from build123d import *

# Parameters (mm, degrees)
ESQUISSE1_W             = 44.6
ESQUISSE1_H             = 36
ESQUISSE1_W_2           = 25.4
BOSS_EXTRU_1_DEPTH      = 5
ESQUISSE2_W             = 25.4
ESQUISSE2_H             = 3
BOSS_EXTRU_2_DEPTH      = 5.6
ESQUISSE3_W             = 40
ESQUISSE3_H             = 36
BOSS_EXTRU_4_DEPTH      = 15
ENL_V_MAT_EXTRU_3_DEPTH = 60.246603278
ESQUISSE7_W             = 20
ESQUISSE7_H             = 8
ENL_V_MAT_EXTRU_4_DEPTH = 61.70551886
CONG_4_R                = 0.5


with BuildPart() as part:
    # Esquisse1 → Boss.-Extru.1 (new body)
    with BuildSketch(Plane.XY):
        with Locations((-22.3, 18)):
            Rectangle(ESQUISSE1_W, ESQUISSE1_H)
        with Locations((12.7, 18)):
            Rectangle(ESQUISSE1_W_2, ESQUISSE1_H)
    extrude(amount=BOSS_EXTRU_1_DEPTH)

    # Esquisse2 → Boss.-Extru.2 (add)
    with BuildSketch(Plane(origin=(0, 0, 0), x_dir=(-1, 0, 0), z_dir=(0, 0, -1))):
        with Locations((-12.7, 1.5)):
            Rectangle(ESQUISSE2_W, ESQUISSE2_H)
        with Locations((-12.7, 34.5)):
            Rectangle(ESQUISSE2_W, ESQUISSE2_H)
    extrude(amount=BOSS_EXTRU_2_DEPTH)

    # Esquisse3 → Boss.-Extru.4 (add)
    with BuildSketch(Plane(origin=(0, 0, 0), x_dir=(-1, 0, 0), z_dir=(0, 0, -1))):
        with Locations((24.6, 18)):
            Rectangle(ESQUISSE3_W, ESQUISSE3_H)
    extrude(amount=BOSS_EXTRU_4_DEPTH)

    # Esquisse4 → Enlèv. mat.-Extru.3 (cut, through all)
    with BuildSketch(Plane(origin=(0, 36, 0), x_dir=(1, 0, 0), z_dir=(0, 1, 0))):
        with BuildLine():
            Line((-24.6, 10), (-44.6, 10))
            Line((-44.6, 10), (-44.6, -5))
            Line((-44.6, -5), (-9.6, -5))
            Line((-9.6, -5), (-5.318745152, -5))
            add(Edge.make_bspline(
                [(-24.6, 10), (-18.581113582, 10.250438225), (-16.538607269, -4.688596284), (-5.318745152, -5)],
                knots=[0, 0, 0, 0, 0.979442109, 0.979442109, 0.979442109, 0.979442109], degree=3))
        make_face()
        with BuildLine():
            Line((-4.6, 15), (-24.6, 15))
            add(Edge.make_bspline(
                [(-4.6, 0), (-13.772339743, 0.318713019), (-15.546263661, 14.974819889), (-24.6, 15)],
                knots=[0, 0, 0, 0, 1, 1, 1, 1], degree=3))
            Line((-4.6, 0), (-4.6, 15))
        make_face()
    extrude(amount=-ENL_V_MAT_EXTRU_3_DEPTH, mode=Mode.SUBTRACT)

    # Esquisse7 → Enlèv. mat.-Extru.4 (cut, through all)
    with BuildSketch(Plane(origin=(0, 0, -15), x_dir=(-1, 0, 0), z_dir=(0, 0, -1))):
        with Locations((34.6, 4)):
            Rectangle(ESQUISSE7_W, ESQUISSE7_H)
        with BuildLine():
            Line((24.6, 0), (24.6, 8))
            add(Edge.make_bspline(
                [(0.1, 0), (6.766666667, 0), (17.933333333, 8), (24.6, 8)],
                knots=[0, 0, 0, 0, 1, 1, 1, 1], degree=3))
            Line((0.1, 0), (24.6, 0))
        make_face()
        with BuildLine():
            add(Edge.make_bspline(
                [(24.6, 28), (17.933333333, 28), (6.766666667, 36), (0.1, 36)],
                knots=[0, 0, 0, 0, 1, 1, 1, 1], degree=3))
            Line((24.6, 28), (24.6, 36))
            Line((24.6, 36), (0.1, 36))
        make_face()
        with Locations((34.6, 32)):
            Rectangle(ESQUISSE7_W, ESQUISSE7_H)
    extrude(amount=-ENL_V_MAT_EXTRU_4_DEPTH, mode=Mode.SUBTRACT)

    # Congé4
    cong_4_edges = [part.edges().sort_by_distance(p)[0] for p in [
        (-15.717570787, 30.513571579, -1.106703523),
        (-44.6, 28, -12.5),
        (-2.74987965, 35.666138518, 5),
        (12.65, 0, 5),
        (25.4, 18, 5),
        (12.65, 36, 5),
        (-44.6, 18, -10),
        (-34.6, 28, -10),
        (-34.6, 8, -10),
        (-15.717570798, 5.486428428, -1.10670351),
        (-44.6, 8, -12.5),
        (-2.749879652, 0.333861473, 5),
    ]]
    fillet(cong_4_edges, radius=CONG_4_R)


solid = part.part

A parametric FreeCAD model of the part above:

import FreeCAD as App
import Part
import Sketcher


def edges_at(feature, points):
    """Names of the edges that pass closest to the given points."""
    edges = feature.Shape.Edges
    near = lambda p: min(range(len(edges)), key=lambda i: edges[i].distToShape(Part.Vertex(*p))[0])
    return sorted({f"Edge{near(p) + 1}" for p in points})


def add_polygon(sketch, points):
    """Adds a closed chain of lines whose ends are joined by coincident constraints."""
    first, n = sketch.GeometryCount, len(points)
    for a, b in zip(points, points[1:] + points[:1]):
        sketch.addGeometry(Part.LineSegment(App.Vector(*a, 0), App.Vector(*b, 0)), False)
    for i in range(n):
        sketch.addConstraint(Sketcher.Constraint("Coincident", first + i, 2, first + (i + 1) % n, 1))

doc = App.newDocument("Part")
body = doc.addObject("PartDesign::Body", "Body")

# Sketch on XY plane
sketch1 = body.newObject("Sketcher::SketchObject", "Sketch")
sketch1.AttachmentSupport = (doc.getObject("XY_Plane"), [""])
sketch1.MapMode = "FlatFace"
add_polygon(sketch1, [(-44.6, 36), (-44.6, 0), (25.4, 0), (25.4, 36)])  # lines 0-3
sketch1.addConstraint(Sketcher.Constraint("Vertical", 0))
sketch1.addConstraint(Sketcher.Constraint("Horizontal", 1))
sketch1.addConstraint(Sketcher.Constraint("Vertical", 2))
sketch1.addConstraint(Sketcher.Constraint("Horizontal", 3))
sketch1.addConstraint(Sketcher.Constraint("PointOnObject", 0, 2, -1))
sketch1.addConstraint(Sketcher.Constraint("DistanceX", 1, 1, 1, 2, 70.0))
sketch1.addConstraint(Sketcher.Constraint("DistanceY", 0, 2, 0, 1, 36.0))
sketch1.addConstraint(Sketcher.Constraint("DistanceX", 0, 2, -1, 1, 44.6))
pad1 = body.newObject("PartDesign::Pad", "Pad")
pad1.Profile = sketch1
pad1.Length = 5

# Sketch on XY plane
sketch2 = body.newObject("Sketcher::SketchObject", "Sketch001")
sketch2.AttachmentSupport = (doc.getObject("XY_Plane"), [""])
sketch2.MapMode = "FlatFace"
add_polygon(sketch2, [(25.4, 3), (25.4, 0), (0, 0), (0, 3)])  # lines 0-3
add_polygon(sketch2, [(25.4, 36), (25.4, 33), (0, 33), (0, 36)])  # lines 4-7
sketch2.addConstraint(Sketcher.Constraint("Vertical", 0))
sketch2.addConstraint(Sketcher.Constraint("Horizontal", 1))
sketch2.addConstraint(Sketcher.Constraint("Vertical", 2))
sketch2.addConstraint(Sketcher.Constraint("Horizontal", 3))
sketch2.addConstraint(Sketcher.Constraint("Vertical", 4))
sketch2.addConstraint(Sketcher.Constraint("Horizontal", 5))
sketch2.addConstraint(Sketcher.Constraint("Vertical", 6))
sketch2.addConstraint(Sketcher.Constraint("Horizontal", 7))
sketch2.addConstraint(Sketcher.Constraint("Coincident", 1, 2, -1, 1))
sketch2.addConstraint(Sketcher.Constraint("PointOnObject", 5, 2, -2))
sketch2.addConstraint(Sketcher.Constraint("Vertical", 3, 2, 4, 2))
sketch2.addConstraint(Sketcher.Constraint("Equal", 2, 4))
sketch2.addConstraint(Sketcher.Constraint("DistanceY", 0, 2, 0, 1, 3.0))
sketch2.addConstraint(Sketcher.Constraint("DistanceX", 1, 2, 1, 1, 25.4))
sketch2.addConstraint(Sketcher.Constraint("DistanceY", -1, 1, 4, 2, 33.0))
pad2 = body.newObject("PartDesign::Pad", "Pad001")
pad2.Profile = sketch2
pad2.Length = 5.6
pad2.Reversed = True

# Sketch on XY plane
sketch3 = body.newObject("Sketcher::SketchObject", "Sketch002")
sketch3.AttachmentSupport = (doc.getObject("XY_Plane"), [""])
sketch3.MapMode = "FlatFace"
add_polygon(sketch3, [(-4.6, 36), (-4.6, 0), (-44.6, 0), (-44.6, 36)])  # lines 0-3
sketch3.addConstraint(Sketcher.Constraint("Vertical", 0))
sketch3.addConstraint(Sketcher.Constraint("Horizontal", 1))
sketch3.addConstraint(Sketcher.Constraint("Vertical", 2))
sketch3.addConstraint(Sketcher.Constraint("Horizontal", 3))
sketch3.addConstraint(Sketcher.Constraint("PointOnObject", 0, 2, -1))
sketch3.addConstraint(Sketcher.Constraint("DistanceX", 1, 2, 1, 1, 40.0))
sketch3.addConstraint(Sketcher.Constraint("DistanceY", 0, 2, 0, 1, 36.0))
sketch3.addConstraint(Sketcher.Constraint("DistanceX", 0, 2, -1, 1, 4.6))
pad3 = body.newObject("PartDesign::Pad", "Pad002")
pad3.Profile = sketch3
pad3.Length = 15
pad3.Reversed = True

# Sketch on XZ plane
sketch4 = body.newObject("Sketcher::SketchObject", "Sketch003")
sketch4.AttachmentSupport = (doc.getObject("XZ_Plane"), [""])
sketch4.MapMode = "FlatFace"
sketch4.AttachmentOffset = App.Placement(App.Vector(0, 0, -36), App.Rotation())
sketch4.addGeometry(Part.LineSegment(App.Vector(-24.6, -10, 0), App.Vector(-44.6, -10, 0)), False)
sketch4.addGeometry(Part.LineSegment(App.Vector(-44.6, -10, 0), App.Vector(-44.6, 5, 0)), False)
sketch4.addGeometry(Part.LineSegment(App.Vector(-44.6, 5, 0), App.Vector(-5.318745, 5, 0)), False)
sketch4.addGeometry(Part.BSplineCurve([App.Vector(-24.6, -10, 0), App.Vector(-18.581114, -10.250438, 0), App.Vector(-16.538607, 4.688596, 0), App.Vector(-5.318745, 5, 0)], [4, 4], [0, 0.979442109], False, 3, [1, 1, 1, 1], False), False)
sketch4.addGeometry(Part.LineSegment(App.Vector(-4.6, -15, 0), App.Vector(-24.6, -15, 0)), False)
sketch4.addGeometry(Part.BSplineCurve([App.Vector(-4.6, 0, 0), App.Vector(-13.77234, -0.318713, 0), App.Vector(-15.546264, -14.97482, 0), App.Vector(-24.6, -15, 0)], [4, 4], [0, 1], False, 3, [1, 1, 1, 1], False), False)
sketch4.addGeometry(Part.LineSegment(App.Vector(-4.6, 0, 0), App.Vector(-4.6, -15, 0)), False)
sketch4.addConstraint(Sketcher.Constraint("Block", 3))
sketch4.addConstraint(Sketcher.Constraint("Block", 5))
sketch4.addConstraint(Sketcher.Constraint("Coincident", 0, 2, 1, 1))
sketch4.addConstraint(Sketcher.Constraint("Coincident", 1, 2, 2, 1))
sketch4.addConstraint(Sketcher.Constraint("Coincident", 2, 2, 3, 2))
sketch4.addConstraint(Sketcher.Constraint("Coincident", 3, 1, 0, 1))
sketch4.addConstraint(Sketcher.Constraint("Coincident", 4, 2, 5, 2))
sketch4.addConstraint(Sketcher.Constraint("Coincident", 5, 1, 6, 1))
sketch4.addConstraint(Sketcher.Constraint("Coincident", 6, 2, 4, 1))
sketch4.addConstraint(Sketcher.Constraint("Horizontal", 0))
sketch4.addConstraint(Sketcher.Constraint("Vertical", 1))
sketch4.addConstraint(Sketcher.Constraint("Horizontal", 2))
sketch4.addConstraint(Sketcher.Constraint("Horizontal", 4))
sketch4.addConstraint(Sketcher.Constraint("Vertical", 6))
sketch4.addConstraint(Sketcher.Constraint("DistanceX", 0, 2, 0, 1, 20.0))
pocket1 = body.newObject("PartDesign::Pocket", "Pocket")
pocket1.Profile = sketch4
pocket1.Type = "ThroughAll"
pocket1.Reversed = True

# Sketch on XY plane
sketch5 = body.newObject("Sketcher::SketchObject", "Sketch004")
sketch5.AttachmentSupport = (doc.getObject("XY_Plane"), [""])
sketch5.MapMode = "FlatFace"
sketch5.AttachmentOffset = App.Placement(App.Vector(0, 0, -15), App.Rotation())
sketch5.addGeometry(Part.LineSegment(App.Vector(-44.6, 0, 0), App.Vector(-44.6, 8, 0)), False)
sketch5.addGeometry(Part.LineSegment(App.Vector(-44.6, 8, 0), App.Vector(-24.6, 8, 0)), False)
sketch5.addGeometry(Part.BSplineCurve([App.Vector(-0.1, 0, 0), App.Vector(-6.766667, 0, 0), App.Vector(-17.933333, 8, 0), App.Vector(-24.6, 8, 0)], [4, 4], [0, 1], False, 3, [1, 1, 1, 1], False), False)
sketch5.addGeometry(Part.LineSegment(App.Vector(-0.1, 0, 0), App.Vector(-44.6, 0, 0)), False)
sketch5.addGeometry(Part.BSplineCurve([App.Vector(-24.6, 28, 0), App.Vector(-17.933333, 28, 0), App.Vector(-6.766667, 36, 0), App.Vector(-0.1, 36, 0)], [4, 4], [0, 1], False, 3, [1, 1, 1, 1], False), False)
sketch5.addGeometry(Part.LineSegment(App.Vector(-24.6, 28, 0), App.Vector(-44.6, 28, 0)), False)
sketch5.addGeometry(Part.LineSegment(App.Vector(-44.6, 28, 0), App.Vector(-44.6, 36, 0)), False)
sketch5.addGeometry(Part.LineSegment(App.Vector(-44.6, 36, 0), App.Vector(-0.1, 36, 0)), False)
sketch5.addConstraint(Sketcher.Constraint("Block", 2))
sketch5.addConstraint(Sketcher.Constraint("Block", 4))
sketch5.addConstraint(Sketcher.Constraint("Coincident", 0, 2, 1, 1))
sketch5.addConstraint(Sketcher.Constraint("Coincident", 1, 2, 2, 2))
sketch5.addConstraint(Sketcher.Constraint("Coincident", 2, 1, 3, 1))
sketch5.addConstraint(Sketcher.Constraint("Coincident", 3, 2, 0, 1))
sketch5.addConstraint(Sketcher.Constraint("Coincident", 4, 1, 5, 1))
sketch5.addConstraint(Sketcher.Constraint("Coincident", 5, 2, 6, 1))
sketch5.addConstraint(Sketcher.Constraint("Coincident", 6, 2, 7, 1))
sketch5.addConstraint(Sketcher.Constraint("Coincident", 7, 2, 4, 2))
sketch5.addConstraint(Sketcher.Constraint("Vertical", 0))
sketch5.addConstraint(Sketcher.Constraint("Horizontal", 1))
sketch5.addConstraint(Sketcher.Constraint("Horizontal", 3))
sketch5.addConstraint(Sketcher.Constraint("Horizontal", 5))
sketch5.addConstraint(Sketcher.Constraint("Vertical", 6))
sketch5.addConstraint(Sketcher.Constraint("Horizontal", 7))
sketch5.addConstraint(Sketcher.Constraint("Vertical", 3, 2, 5, 2))
sketch5.addConstraint(Sketcher.Constraint("DistanceX", 1, 1, 1, 2, 20.0))
pocket2 = body.newObject("PartDesign::Pocket", "Pocket001")
pocket2.Profile = sketch5
pocket2.Type = "ThroughAll"
pocket2.Reversed = True
doc.recompute()

fillet = body.newObject("PartDesign::Fillet", "Fillet")
fillet.Base = (pocket2, edges_at(pocket2, [
    (-15.718, 30.514, -1.107),
    (-44.6, 28, -12.5),
    (-2.75, 35.666, 5),
    (12.65, 0, 5),
    (25.4, 18, 5),
    (12.65, 36, 5),
    (-44.6, 18, -10),
    (-34.6, 28, -10),
    (-34.6, 8, -10),
    (-15.718, 5.486, -1.107),
    (-44.6, 8, -12.5),
    (-2.75, 0.334, 5),
]))
fillet.Radius = 0.5

doc.recompute()
